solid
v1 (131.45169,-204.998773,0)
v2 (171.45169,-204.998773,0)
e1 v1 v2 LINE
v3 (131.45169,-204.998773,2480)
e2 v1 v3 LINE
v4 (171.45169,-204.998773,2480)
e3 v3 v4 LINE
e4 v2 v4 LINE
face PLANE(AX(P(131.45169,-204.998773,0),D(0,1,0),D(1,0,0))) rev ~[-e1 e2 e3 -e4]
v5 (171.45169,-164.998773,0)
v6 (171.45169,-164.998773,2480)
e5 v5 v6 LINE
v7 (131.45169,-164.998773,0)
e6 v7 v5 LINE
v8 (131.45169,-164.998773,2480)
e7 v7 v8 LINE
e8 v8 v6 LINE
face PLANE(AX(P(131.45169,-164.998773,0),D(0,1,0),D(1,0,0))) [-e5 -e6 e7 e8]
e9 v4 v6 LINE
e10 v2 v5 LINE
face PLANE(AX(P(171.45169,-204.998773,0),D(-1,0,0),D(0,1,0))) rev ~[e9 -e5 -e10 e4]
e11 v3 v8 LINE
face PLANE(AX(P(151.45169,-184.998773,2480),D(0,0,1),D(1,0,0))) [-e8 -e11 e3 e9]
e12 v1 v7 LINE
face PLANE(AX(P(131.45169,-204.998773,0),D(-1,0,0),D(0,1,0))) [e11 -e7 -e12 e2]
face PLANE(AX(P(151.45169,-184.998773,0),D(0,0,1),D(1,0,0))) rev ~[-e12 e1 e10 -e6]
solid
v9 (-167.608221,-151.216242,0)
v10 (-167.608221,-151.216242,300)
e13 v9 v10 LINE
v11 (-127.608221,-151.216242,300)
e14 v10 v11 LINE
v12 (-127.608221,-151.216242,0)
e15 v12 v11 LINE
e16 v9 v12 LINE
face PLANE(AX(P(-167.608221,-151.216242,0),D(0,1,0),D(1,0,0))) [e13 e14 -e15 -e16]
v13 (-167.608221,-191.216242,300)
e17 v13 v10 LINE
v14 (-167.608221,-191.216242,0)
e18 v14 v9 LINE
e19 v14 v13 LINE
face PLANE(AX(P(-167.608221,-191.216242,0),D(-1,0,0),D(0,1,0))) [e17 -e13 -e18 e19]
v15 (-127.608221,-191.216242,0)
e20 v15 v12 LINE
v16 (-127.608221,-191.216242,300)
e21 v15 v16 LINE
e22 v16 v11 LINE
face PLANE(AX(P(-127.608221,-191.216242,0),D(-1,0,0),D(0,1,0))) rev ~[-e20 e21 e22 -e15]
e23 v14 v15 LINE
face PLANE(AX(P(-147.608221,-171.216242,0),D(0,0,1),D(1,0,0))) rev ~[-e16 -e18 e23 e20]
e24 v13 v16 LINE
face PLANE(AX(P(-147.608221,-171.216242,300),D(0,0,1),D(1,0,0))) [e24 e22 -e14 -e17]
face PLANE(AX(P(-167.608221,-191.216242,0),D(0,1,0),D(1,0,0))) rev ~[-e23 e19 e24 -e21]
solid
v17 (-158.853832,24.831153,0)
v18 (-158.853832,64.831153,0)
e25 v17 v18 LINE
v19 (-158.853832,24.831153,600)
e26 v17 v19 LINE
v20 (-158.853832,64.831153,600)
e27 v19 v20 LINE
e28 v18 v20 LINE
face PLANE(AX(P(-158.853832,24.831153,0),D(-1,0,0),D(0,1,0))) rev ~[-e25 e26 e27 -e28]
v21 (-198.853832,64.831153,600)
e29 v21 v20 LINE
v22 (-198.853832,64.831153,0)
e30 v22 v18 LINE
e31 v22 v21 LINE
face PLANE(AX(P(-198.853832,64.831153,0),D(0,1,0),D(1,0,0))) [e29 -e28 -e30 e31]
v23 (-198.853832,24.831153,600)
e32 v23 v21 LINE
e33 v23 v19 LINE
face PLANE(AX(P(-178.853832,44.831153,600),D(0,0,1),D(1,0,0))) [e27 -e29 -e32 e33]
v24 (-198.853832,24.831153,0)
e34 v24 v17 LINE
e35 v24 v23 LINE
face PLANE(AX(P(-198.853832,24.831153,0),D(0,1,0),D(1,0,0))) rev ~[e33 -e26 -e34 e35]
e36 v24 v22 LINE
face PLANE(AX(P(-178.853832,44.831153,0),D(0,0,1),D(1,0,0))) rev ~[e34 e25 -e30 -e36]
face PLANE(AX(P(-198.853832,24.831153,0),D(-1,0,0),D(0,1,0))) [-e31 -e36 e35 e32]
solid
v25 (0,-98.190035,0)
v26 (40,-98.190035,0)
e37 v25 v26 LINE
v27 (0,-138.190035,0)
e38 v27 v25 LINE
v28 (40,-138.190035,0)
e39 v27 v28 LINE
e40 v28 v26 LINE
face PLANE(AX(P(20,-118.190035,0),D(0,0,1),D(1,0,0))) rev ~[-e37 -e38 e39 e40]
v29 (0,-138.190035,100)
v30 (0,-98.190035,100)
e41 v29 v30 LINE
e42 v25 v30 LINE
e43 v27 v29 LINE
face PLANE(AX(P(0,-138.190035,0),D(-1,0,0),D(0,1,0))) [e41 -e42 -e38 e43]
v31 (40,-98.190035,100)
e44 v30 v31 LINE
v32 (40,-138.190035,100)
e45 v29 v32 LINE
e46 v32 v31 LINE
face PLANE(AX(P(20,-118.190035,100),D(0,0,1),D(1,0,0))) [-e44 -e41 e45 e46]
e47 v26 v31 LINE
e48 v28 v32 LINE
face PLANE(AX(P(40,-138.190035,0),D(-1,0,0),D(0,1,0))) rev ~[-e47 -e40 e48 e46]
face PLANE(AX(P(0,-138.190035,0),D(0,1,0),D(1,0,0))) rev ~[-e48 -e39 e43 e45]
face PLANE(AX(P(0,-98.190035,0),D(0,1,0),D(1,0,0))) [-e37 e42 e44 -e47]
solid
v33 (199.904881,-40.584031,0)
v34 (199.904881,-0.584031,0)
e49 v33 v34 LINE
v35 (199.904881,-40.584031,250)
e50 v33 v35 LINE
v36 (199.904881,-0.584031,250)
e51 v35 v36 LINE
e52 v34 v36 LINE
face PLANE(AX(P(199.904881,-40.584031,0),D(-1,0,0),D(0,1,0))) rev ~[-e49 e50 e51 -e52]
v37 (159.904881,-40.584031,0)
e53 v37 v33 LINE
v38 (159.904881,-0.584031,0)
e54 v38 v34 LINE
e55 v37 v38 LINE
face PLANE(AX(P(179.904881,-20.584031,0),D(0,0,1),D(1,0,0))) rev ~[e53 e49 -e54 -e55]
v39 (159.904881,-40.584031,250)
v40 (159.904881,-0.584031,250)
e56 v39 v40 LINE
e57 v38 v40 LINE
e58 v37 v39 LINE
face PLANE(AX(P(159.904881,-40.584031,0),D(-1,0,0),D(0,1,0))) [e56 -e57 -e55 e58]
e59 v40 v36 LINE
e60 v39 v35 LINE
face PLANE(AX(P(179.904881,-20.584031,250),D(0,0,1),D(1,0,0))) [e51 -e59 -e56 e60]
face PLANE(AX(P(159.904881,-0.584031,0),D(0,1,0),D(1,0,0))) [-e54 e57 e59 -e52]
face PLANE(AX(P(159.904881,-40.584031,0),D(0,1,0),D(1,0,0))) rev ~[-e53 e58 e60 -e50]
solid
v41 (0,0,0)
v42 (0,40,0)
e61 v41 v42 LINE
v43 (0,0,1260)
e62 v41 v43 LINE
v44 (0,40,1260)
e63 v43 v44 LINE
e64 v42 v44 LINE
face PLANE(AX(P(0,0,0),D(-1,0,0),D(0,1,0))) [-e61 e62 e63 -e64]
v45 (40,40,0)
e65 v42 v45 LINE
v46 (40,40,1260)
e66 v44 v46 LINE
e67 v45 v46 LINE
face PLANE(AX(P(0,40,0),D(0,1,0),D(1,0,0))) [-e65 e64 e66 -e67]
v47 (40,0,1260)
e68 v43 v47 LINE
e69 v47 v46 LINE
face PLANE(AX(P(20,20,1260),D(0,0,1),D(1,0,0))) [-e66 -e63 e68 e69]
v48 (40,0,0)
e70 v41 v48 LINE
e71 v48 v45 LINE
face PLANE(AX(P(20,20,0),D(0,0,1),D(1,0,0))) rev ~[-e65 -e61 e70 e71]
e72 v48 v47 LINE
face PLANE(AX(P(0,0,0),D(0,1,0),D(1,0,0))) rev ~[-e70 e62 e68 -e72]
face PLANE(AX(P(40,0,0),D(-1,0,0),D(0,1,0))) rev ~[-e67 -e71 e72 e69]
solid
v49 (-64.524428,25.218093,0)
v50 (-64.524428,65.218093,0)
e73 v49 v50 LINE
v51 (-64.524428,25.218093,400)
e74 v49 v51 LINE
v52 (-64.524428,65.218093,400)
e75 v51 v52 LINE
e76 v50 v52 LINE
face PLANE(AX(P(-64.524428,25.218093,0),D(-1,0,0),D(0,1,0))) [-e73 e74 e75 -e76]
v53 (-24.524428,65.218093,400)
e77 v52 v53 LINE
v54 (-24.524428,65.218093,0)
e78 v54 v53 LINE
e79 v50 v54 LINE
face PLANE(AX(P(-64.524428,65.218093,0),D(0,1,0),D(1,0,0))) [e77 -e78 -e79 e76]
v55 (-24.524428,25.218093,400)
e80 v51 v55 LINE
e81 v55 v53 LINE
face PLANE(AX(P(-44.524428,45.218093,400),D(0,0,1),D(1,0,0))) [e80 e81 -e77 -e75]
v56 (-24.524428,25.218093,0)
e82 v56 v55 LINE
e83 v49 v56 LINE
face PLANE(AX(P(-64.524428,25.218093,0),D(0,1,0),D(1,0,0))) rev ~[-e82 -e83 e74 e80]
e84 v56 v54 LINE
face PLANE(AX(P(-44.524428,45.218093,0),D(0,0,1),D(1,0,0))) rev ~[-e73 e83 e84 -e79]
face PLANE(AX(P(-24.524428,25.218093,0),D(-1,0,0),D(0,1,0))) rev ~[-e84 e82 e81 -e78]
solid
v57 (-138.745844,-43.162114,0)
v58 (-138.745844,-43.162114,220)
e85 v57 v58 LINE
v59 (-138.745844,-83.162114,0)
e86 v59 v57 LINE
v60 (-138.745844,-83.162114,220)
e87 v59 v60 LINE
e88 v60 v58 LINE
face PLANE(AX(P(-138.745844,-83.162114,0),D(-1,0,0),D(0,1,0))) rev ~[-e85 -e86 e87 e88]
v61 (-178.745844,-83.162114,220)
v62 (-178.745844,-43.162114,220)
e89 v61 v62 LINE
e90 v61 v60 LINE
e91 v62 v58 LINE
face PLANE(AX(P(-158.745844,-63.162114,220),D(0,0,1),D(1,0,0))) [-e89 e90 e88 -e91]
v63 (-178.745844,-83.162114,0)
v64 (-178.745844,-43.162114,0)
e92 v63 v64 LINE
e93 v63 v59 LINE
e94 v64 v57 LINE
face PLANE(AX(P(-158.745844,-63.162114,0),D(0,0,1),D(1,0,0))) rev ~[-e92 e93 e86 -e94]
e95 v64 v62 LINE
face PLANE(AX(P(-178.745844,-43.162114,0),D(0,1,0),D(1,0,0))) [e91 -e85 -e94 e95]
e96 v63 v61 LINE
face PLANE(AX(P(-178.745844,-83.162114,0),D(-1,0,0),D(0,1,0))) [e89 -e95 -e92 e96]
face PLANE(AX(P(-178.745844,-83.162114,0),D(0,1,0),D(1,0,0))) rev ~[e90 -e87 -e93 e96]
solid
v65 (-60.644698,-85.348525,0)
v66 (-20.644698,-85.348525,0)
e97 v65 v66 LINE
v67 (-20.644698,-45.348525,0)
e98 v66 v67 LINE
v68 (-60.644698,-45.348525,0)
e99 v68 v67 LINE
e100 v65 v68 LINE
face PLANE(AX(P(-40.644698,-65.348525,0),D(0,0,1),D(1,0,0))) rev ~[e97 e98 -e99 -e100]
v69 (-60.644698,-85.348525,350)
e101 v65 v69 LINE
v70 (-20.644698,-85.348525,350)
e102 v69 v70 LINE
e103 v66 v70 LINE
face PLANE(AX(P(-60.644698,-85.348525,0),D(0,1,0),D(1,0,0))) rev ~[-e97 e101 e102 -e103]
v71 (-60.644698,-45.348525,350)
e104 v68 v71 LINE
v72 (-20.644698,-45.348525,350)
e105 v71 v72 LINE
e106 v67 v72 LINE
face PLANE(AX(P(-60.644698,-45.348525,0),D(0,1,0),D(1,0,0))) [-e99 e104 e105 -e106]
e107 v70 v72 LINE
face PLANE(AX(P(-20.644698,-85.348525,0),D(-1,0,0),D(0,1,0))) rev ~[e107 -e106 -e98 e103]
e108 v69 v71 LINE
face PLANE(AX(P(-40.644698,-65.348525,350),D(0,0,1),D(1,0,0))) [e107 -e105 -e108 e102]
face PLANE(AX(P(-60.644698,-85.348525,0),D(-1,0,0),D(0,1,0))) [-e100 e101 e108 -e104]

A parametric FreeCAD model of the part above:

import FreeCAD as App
import Part
import Sketcher
from FreeCAD import Vector


def add_polygon(sketch, points):
    """Adds a closed chain of lines whose ends are joined by coincident constraints."""
    first, n = sketch.GeometryCount, len(points)
    for a, b in zip(points, points[1:] + points[:1]):
        sketch.addGeometry(Part.LineSegment(App.Vector(*a, 0), App.Vector(*b, 0)), False)
    for i in range(n):
        sketch.addConstraint(Sketcher.Constraint("Coincident", first + i, 2, first + (i + 1) % n, 1))

doc = App.newDocument("Part")
body = doc.addObject("PartDesign::Body", "Body")

sketch1 = body.newObject("Sketcher::SketchObject", "Sketch")
sketch1.AttachmentSupport = (doc.getObject("XY_Plane"), [""])
sketch1.MapMode = "FlatFace"
add_polygon(sketch1, [(0, 40), (0, 0), (40, 0), (40, 40)])
sketch1.addConstraint([
    Sketcher.Constraint("Vertical", 0),
    Sketcher.Constraint("Horizontal", 1),
    Sketcher.Constraint("Vertical", 2),
    Sketcher.Constraint("Horizontal", 3),
    Sketcher.Constraint("Coincident", 0, 2, -1, 1),
    Sketcher.Constraint("Equal", 3, 0),
    Sketcher.Constraint("DistanceX", 1, 1, 1, 2, 40.0),
])
pad1 = body.newObject("PartDesign::Pad", "Pad")
pad1.Profile = sketch1
pad1.Length = 1260
body2 = doc.addObject("PartDesign::Body", "Body001")

sketch2 = body2.newObject("Sketcher::SketchObject", "Sketch001")
sketch2.AttachmentSupport = (doc.getObject("XY_Plane001"), [""])
sketch2.MapMode = "FlatFace"
add_polygon(sketch2, [(-178.745844, -43.162114), (-178.745844, -83.162114), (-138.745844, -83.162114), (-138.745844, -43.162114)])
sketch2.addConstraint([
    Sketcher.Constraint("Vertical", 0),
    Sketcher.Constraint("Horizontal", 1),
    Sketcher.Constraint("Vertical", 2),
    Sketcher.Constraint("Horizontal", 3),
    Sketcher.Constraint("Equal", 3, 0),
    Sketcher.Constraint("DistanceX", 1, 1, 1, 2, 40.0),
    Sketcher.Constraint("DistanceX", 0, 2, -1, 1, 178.745844),
    Sketcher.Constraint("DistanceY", 0, 2, -1, 1, 83.162114),
])
pad2 = body2.newObject("PartDesign::Pad", "Pad001")
pad2.Profile = sketch2
pad2.Length = 220
body3 = doc.addObject("PartDesign::Body", "Body002")

sketch3 = body3.newObject("Sketcher::SketchObject", "Sketch002")
sketch3.AttachmentSupport = (doc.getObject("XY_Plane002"), [""])
sketch3.MapMode = "FlatFace"
add_polygon(sketch3, [(159.904881, -0.584031), (159.904881, -40.584031), (199.904881, -40.584031), (199.904881, -0.584031)])
sketch3.addConstraint([
    Sketcher.Constraint("Vertical", 0),
    Sketcher.Constraint("Horizontal", 1),
    Sketcher.Constraint("Vertical", 2),
    Sketcher.Constraint("Horizontal", 3),
    Sketcher.Constraint("Equal", 3, 0),
    Sketcher.Constraint("DistanceX", 1, 1, 1, 2, 40.0),
    Sketcher.Constraint("DistanceX", -1, 1, 0, 2, 159.904881),
    Sketcher.Constraint("DistanceY", 0, 2, -1, 1, 40.584031),
])
pad3 = body3.newObject("PartDesign::Pad", "Pad002")
pad3.Profile = sketch3
pad3.Length = 250
body4 = doc.addObject("PartDesign::Body", "Body003")

sketch4 = body4.newObject("Sketcher::SketchObject", "Sketch003")
sketch4.AttachmentSupport = (doc.getObject("XY_Plane003"), [""])
sketch4.MapMode = "FlatFace"
add_polygon(sketch4, [(-167.608221, -151.216242), (-167.608221, -191.216242), (-127.608221, -191.216242), (-127.608221, -151.216242)])
sketch4.addConstraint([
    Sketcher.Constraint("Vertical", 0),
    Sketcher.Constraint("Horizontal", 1),
    Sketcher.Constraint("Vertical", 2),
    Sketcher.Constraint("Horizontal", 3),
    Sketcher.Constraint("Equal", 3, 0),
    Sketcher.Constraint("DistanceX", 1, 1, 1, 2, 40.0),
    Sketcher.Constraint("DistanceX", 0, 2, -1, 1, 167.608221),
    Sketcher.Constraint("DistanceY", 0, 2, -1, 1, 191.216242),
])
pad4 = body4.newObject("PartDesign::Pad", "Pad003")
pad4.Profile = sketch4
pad4.Length = 300
body5 = doc.addObject("PartDesign::Body", "Body004")

sketch5 = body5.newObject("Sketcher::SketchObject", "Sketch004")
sketch5.AttachmentSupport = (doc.getObject("XY_Plane004"), [""])
sketch5.MapMode = "FlatFace"
add_polygon(sketch5, [(131.45169, -164.998773), (131.45169, -204.998773), (171.45169, -204.998773), (171.45169, -164.998773)])
sketch5.addConstraint([
    Sketcher.Constraint("Vertical", 0),
    Sketcher.Constraint("Horizontal", 1),
    Sketcher.Constraint("Vertical", 2),
    Sketcher.Constraint("Horizontal", 3),
    Sketcher.Constraint("Equal", 3, 0),
    Sketcher.Constraint("DistanceX", 1, 1, 1, 2, 40.0),
    Sketcher.Constraint("DistanceX", -1, 1, 0, 2, 131.45169),
    Sketcher.Constraint("DistanceY", 0, 2, -1, 1, 204.998773),
])
pad5 = body5.newObject("PartDesign::Pad", "Pad004")
pad5.Profile = sketch5
pad5.Length = 2480
body6 = doc.addObject("PartDesign::Body", "Body005")

sketch6 = body6.newObject("Sketcher::SketchObject", "Sketch005")
sketch6.AttachmentSupport = (doc.getObject("XY_Plane005"), [""])
sketch6.MapMode = "FlatFace"
add_polygon(sketch6, [(-198.853832, 64.831153), (-198.853832, 24.831153), (-158.853832, 24.831153), (-158.853832, 64.831153)])
sketch6.addConstraint([
    Sketcher.Constraint("Vertical", 0),
    Sketcher.Constraint("Horizontal", 1),
    Sketcher.Constraint("Vertical", 2),
    Sketcher.Constraint("Horizontal", 3),
    Sketcher.Constraint("Equal", 3, 0),
    Sketcher.Constraint("DistanceX", 1, 1, 1, 2, 40.0),
    Sketcher.Constraint("DistanceX", 0, 2, -1, 1, 198.853832),
    Sketcher.Constraint("DistanceY", -1, 1, 0, 2, 24.831153),
])
pad6 = body6.newObject("PartDesign::Pad", "Pad005")
pad6.Profile = sketch6
pad6.Length = 600
body7 = doc.addObject("PartDesign::Body", "Body006")

sketch7 = body7.newObject("Sketcher::SketchObject", "Sketch006")
sketch7.AttachmentSupport = (doc.getObject("XY_Plane006"), [""])
sketch7.MapMode = "FlatFace"
add_polygon(sketch7, [(-64.524428, 65.218093), (-64.524428, 25.218093), (-24.524428, 25.218093), (-24.524428, 65.218093)])
sketch7.addConstraint([
    Sketcher.Constraint("Vertical", 0),
    Sketcher.Constraint("Horizontal", 1),
    Sketcher.Constraint("Vertical", 2),
    Sketcher.Constraint("Horizontal", 3),
    Sketcher.Constraint("Equal", 3, 0),
    Sketcher.Constraint("DistanceX", 1, 1, 1, 2, 40.0),
    Sketcher.Constraint("DistanceX", 0, 2, -1, 1, 64.524428),
    Sketcher.Constraint("DistanceY", -1, 1, 0, 2, 25.218093),
])
pad7 = body7.newObject("PartDesign::Pad", "Pad006")
pad7.Profile = sketch7
pad7.Length = 400
body8 = doc.addObject("PartDesign::Body", "Body007")

sketch8 = body8.newObject("Sketcher::SketchObject", "Sketch007")
sketch8.AttachmentSupport = (doc.getObject("XY_Plane007"), [""])
sketch8.MapMode = "FlatFace"
add_polygon(sketch8, [(0, -98.190035), (0, -138.190035), (40, -138.190035), (40, -98.190035)])
sketch8.addConstraint([
    Sketcher.Constraint("Vertical", 0),
    Sketcher.Constraint("Horizontal", 1),
    Sketcher.Constraint("Vertical", 2),
    Sketcher.Constraint("Horizontal", 3),
    Sketcher.Constraint("PointOnObject", 0, 2, -2),
    Sketcher.Constraint("Equal", 3, 0),
    Sketcher.Constraint("DistanceX", 1, 1, 1, 2, 40.0),
    Sketcher.Constraint("DistanceY", 0, 2, -1, 1, 138.190035),
])
pad8 = body8.newObject("PartDesign::Pad", "Pad007")
pad8.Profile = sketch8
pad8.Length = 100
body9 = doc.addObject("PartDesign::Body", "Body008")

sketch9 = body9.newObject("Sketcher::SketchObject", "Sketch008")
sketch9.AttachmentSupport = (doc.getObject("XY_Plane008"), [""])
sketch9.MapMode = "FlatFace"
add_polygon(sketch9, [(-60.644698, -45.348525), (-60.644698, -85.348525), (-20.644698, -85.348525), (-20.644698, -45.348525)])
sketch9.addConstraint([
    Sketcher.Constraint("Vertical", 0),
    Sketcher.Constraint("Horizontal", 1),
    Sketcher.Constraint("Vertical", 2),
    Sketcher.Constraint("Horizontal", 3),
    Sketcher.Constraint("Equal", 3, 0),
    Sketcher.Constraint("DistanceX", 1, 1, 1, 2, 40.0),
    Sketcher.Constraint("DistanceX", 1, 2, -1, 1, 20.644698),
    Sketcher.Constraint("DistanceY", 0, 2, -1, 1, 85.348525),
])
pad9 = body9.newObject("PartDesign::Pad", "Pad008")
pad9.Profile = sketch9
pad9.Length = 350

doc.recompute()
